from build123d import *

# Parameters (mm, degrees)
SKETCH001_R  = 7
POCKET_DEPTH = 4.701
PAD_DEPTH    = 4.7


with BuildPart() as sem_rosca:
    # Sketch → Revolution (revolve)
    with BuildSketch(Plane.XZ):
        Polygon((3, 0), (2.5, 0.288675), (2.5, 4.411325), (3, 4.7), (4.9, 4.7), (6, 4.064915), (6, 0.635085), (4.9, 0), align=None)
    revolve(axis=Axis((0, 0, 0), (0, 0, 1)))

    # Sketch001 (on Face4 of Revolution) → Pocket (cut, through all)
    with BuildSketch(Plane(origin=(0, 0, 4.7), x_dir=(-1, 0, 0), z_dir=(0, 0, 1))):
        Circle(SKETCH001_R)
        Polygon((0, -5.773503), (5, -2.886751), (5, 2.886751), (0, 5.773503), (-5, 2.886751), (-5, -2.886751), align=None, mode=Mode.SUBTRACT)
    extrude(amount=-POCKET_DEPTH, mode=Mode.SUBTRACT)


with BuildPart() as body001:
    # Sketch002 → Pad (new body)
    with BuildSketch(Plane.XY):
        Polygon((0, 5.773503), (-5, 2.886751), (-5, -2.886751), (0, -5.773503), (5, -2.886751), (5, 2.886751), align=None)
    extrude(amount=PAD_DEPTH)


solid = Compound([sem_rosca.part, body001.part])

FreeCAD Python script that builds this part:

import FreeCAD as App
import Part
import Sketcher

V = App.Vector
Q = App.Units.Quantity

doc = App.newDocument("Part")
body = doc.addObject("PartDesign::Body", "Body")

sketch1 = body.newObject("Sketcher::SketchObject", "Sketch")
sketch1.AttachmentSupport = (doc.getObject("XZ_Plane"), [""])
sketch1.MapMode = "FlatFace"
sketch1.addGeometry([
    Part.LineSegment(V(2.5, 0.3, 0), V(3, 0, 0)),
    Part.LineSegment(V(3, 0, 0), V(4.9, 0, 0)),
    Part.LineSegment(V(4.9, 0, 0), V(6, 0.6, 0)),
    Part.LineSegment(V(6, 0.6, 0), V(6, 4.1, 0)),
    Part.LineSegment(V(6, 4.1, 0), V(4.9, 4.7, 0)),
    Part.LineSegment(V(4.9, 4.7, 0), V(3, 4.7, 0)),
    Part.LineSegment(V(3, 4.7, 0), V(2.5, 4.4, 0)),
    Part.LineSegment(V(2.5, 4.4, 0), V(2.5, 0.3, 0)),
], False)
sketch1.addConstraint([
    Sketcher.Constraint("Coincident", 0, 2, 1, 1),
    Sketcher.Constraint("Coincident", 1, 2, 2, 1),
    Sketcher.Constraint("Coincident", 2, 2, 3, 1),
    Sketcher.Constraint("Coincident", 3, 2, 4, 1),
    Sketcher.Constraint("Coincident", 4, 2, 5, 1),
    Sketcher.Constraint("Coincident", 5, 2, 6, 1),
    Sketcher.Constraint("Coincident", 6, 2, 7, 1),
    Sketcher.Constraint("Coincident", 7, 2, 0, 1),
    Sketcher.Constraint("Horizontal", 1),
    Sketcher.Constraint("Vertical", 3),
    Sketcher.Constraint("Horizontal", 5),
    Sketcher.Constraint("Vertical", 7),
    Sketcher.Constraint("PointOnObject", 0, 2, -1),
    Sketcher.Constraint("Parallel", 0, 4),
    Sketcher.Constraint("Parallel", 2, 6),
    Sketcher.Constraint("Vertical", 1, 2, 4, 2),
    Sketcher.Constraint("Vertical", 0, 2, 5, 2),
    Sketcher.Constraint("Equal", 2, 4),
    Sketcher.Constraint("Angle", 0, Q("-29.999988 deg")),
    Sketcher.Constraint("DistanceX", 1, 1, 1, 2, 1.9),
    Sketcher.Constraint("DistanceX", -1, 1, 0, 2, 3.0),
    Sketcher.Constraint("DistanceX", -1, 1, 2, 2, 6.0),
    Sketcher.Constraint("DistanceY", -1, 1, 4, 2, 4.7),
    Sketcher.Constraint("DistanceX", -1, 1, 6, 2, 2.5),
])
revolution = body.newObject("PartDesign::Revolution", "Revolution")
revolution.Profile = sketch1
revolution.ReferenceAxis = (sketch1, ["V_Axis"])
revolution.Angle = 360

sketch2 = body.newObject("Sketcher::SketchObject", "Sketch001")
sketch2.AttachmentSupport = (doc.getObject("XY_Plane"), [""])
sketch2.MapMode = "FlatFace"
sketch2.AttachmentOffset = App.Placement(V(0, 0, 4.7), App.Rotation())
sketch2.addGeometry([
    Part.Circle(V(0, 0, 0), V(0, 0, 1), 7),
    Part.LineSegment(V(-5, 3, 0), V(0, 6, 0)),
    Part.LineSegment(V(0, 6, 0), V(5, 3, 0)),
    Part.LineSegment(V(5, 3, 0), V(5, -3, 0)),
    Part.LineSegment(V(5, -3, 0), V(0, -6, 0)),
    Part.LineSegment(V(0, -6, 0), V(-5, -3, 0)),
    Part.LineSegment(V(-5, -3, 0), V(-5, 3, 0)),
], False)
sketch2.addConstraint([
    Sketcher.Constraint("Coincident", 1, 2, 2, 1),
    Sketcher.Constraint("Coincident", 2, 2, 3, 1),
    Sketcher.Constraint("Coincident", 3, 2, 4, 1),
    Sketcher.Constraint("Coincident", 4, 2, 5, 1),
    Sketcher.Constraint("Coincident", 5, 2, 6, 1),
    Sketcher.Constraint("Coincident", 6, 2, 1, 1),
    Sketcher.Constraint("Vertical", 3),
    Sketcher.Constraint("Vertical", 6),
    Sketcher.Constraint("Coincident", 0, 3, -1, 1),
    Sketcher.Constraint("Symmetric", 1, 2, 4, 2, -1, 1),
    Sketcher.Constraint("Symmetric", 2, 2, 5, 2, -1, 1),
    Sketcher.Constraint("PointOnObject", 1, 2, -2),
    Sketcher.Constraint("Parallel", 1, 4),
    Sketcher.Constraint("Horizontal", 3, 2, 5, 2),
    Sketcher.Constraint("Diameter", 0, 14.0),
    Sketcher.Constraint("Angle", 1, Q("30.000006 deg")),
    Sketcher.Constraint("DistanceX", -1, 1, 2, 2, 5.0),
    Sketcher.Constraint("DistanceY", 3, 2, 3, 1, 5.773502),
])
pocket1 = body.newObject("PartDesign::Pocket", "Pocket")
pocket1.Profile = sketch2
pocket1.Type = "ThroughAll"
body2 = doc.addObject("PartDesign::Body", "Body001")

sketch3 = body2.newObject("Sketcher::SketchObject", "Sketch002")
sketch3.AttachmentSupport = (doc.getObject("XY_Plane001"), [""])
sketch3.MapMode = "FlatFace"
sketch3.addGeometry([
    Part.LineSegment(V(0, 6, 0), V(-5, 3, 0)),
    Part.LineSegment(V(-5, 3, 0), V(-5, -3, 0)),
    Part.LineSegment(V(-5, -3, 0), V(0, -6, 0)),
    Part.LineSegment(V(0, -6, 0), V(5, -3, 0)),
    Part.LineSegment(V(5, -3, 0), V(5, 3, 0)),
    Part.LineSegment(V(5, 3, 0), V(0, 6, 0)),
], False)
sketch3.addConstraint([
    Sketcher.Constraint("Coincident", 0, 2, 1, 1),
    Sketcher.Constraint("Coincident", 1, 2, 2, 1),
    Sketcher.Constraint("Coincident", 2, 2, 3, 1),
    Sketcher.Constraint("Coincident", 3, 2, 4, 1),
    Sketcher.Constraint("Coincident", 4, 2, 5, 1),
    Sketcher.Constraint("Coincident", 5, 2, 0, 1),
    Sketcher.Constraint("Vertical", 1),
    Sketcher.Constraint("Vertical", 4),
    Sketcher.Constraint("Symmetric", 0, 2, 3, 2, -1, 1),
    Sketcher.Constraint("Symmetric", 2, 2, 5, 2, -1, 1),
    Sketcher.Constraint("PointOnObject", 2, 2, -2),
    Sketcher.Constraint("Parallel", 2, 5),
    Sketcher.Constraint("Horizontal", 1, 2, 3, 2),
    Sketcher.Constraint("Angle", 0, Q("-149.999994 deg")),
    Sketcher.Constraint("DistanceX", 0, 2, -1, 1, 5.0),
    Sketcher.Constraint("DistanceY", 1, 2, 1, 1, 5.773502),
])
pad1 = body2.newObject("PartDesign::Pad", "Pad")
pad1.Profile = sketch3
pad1.Length = 4.7

doc.recompute()
